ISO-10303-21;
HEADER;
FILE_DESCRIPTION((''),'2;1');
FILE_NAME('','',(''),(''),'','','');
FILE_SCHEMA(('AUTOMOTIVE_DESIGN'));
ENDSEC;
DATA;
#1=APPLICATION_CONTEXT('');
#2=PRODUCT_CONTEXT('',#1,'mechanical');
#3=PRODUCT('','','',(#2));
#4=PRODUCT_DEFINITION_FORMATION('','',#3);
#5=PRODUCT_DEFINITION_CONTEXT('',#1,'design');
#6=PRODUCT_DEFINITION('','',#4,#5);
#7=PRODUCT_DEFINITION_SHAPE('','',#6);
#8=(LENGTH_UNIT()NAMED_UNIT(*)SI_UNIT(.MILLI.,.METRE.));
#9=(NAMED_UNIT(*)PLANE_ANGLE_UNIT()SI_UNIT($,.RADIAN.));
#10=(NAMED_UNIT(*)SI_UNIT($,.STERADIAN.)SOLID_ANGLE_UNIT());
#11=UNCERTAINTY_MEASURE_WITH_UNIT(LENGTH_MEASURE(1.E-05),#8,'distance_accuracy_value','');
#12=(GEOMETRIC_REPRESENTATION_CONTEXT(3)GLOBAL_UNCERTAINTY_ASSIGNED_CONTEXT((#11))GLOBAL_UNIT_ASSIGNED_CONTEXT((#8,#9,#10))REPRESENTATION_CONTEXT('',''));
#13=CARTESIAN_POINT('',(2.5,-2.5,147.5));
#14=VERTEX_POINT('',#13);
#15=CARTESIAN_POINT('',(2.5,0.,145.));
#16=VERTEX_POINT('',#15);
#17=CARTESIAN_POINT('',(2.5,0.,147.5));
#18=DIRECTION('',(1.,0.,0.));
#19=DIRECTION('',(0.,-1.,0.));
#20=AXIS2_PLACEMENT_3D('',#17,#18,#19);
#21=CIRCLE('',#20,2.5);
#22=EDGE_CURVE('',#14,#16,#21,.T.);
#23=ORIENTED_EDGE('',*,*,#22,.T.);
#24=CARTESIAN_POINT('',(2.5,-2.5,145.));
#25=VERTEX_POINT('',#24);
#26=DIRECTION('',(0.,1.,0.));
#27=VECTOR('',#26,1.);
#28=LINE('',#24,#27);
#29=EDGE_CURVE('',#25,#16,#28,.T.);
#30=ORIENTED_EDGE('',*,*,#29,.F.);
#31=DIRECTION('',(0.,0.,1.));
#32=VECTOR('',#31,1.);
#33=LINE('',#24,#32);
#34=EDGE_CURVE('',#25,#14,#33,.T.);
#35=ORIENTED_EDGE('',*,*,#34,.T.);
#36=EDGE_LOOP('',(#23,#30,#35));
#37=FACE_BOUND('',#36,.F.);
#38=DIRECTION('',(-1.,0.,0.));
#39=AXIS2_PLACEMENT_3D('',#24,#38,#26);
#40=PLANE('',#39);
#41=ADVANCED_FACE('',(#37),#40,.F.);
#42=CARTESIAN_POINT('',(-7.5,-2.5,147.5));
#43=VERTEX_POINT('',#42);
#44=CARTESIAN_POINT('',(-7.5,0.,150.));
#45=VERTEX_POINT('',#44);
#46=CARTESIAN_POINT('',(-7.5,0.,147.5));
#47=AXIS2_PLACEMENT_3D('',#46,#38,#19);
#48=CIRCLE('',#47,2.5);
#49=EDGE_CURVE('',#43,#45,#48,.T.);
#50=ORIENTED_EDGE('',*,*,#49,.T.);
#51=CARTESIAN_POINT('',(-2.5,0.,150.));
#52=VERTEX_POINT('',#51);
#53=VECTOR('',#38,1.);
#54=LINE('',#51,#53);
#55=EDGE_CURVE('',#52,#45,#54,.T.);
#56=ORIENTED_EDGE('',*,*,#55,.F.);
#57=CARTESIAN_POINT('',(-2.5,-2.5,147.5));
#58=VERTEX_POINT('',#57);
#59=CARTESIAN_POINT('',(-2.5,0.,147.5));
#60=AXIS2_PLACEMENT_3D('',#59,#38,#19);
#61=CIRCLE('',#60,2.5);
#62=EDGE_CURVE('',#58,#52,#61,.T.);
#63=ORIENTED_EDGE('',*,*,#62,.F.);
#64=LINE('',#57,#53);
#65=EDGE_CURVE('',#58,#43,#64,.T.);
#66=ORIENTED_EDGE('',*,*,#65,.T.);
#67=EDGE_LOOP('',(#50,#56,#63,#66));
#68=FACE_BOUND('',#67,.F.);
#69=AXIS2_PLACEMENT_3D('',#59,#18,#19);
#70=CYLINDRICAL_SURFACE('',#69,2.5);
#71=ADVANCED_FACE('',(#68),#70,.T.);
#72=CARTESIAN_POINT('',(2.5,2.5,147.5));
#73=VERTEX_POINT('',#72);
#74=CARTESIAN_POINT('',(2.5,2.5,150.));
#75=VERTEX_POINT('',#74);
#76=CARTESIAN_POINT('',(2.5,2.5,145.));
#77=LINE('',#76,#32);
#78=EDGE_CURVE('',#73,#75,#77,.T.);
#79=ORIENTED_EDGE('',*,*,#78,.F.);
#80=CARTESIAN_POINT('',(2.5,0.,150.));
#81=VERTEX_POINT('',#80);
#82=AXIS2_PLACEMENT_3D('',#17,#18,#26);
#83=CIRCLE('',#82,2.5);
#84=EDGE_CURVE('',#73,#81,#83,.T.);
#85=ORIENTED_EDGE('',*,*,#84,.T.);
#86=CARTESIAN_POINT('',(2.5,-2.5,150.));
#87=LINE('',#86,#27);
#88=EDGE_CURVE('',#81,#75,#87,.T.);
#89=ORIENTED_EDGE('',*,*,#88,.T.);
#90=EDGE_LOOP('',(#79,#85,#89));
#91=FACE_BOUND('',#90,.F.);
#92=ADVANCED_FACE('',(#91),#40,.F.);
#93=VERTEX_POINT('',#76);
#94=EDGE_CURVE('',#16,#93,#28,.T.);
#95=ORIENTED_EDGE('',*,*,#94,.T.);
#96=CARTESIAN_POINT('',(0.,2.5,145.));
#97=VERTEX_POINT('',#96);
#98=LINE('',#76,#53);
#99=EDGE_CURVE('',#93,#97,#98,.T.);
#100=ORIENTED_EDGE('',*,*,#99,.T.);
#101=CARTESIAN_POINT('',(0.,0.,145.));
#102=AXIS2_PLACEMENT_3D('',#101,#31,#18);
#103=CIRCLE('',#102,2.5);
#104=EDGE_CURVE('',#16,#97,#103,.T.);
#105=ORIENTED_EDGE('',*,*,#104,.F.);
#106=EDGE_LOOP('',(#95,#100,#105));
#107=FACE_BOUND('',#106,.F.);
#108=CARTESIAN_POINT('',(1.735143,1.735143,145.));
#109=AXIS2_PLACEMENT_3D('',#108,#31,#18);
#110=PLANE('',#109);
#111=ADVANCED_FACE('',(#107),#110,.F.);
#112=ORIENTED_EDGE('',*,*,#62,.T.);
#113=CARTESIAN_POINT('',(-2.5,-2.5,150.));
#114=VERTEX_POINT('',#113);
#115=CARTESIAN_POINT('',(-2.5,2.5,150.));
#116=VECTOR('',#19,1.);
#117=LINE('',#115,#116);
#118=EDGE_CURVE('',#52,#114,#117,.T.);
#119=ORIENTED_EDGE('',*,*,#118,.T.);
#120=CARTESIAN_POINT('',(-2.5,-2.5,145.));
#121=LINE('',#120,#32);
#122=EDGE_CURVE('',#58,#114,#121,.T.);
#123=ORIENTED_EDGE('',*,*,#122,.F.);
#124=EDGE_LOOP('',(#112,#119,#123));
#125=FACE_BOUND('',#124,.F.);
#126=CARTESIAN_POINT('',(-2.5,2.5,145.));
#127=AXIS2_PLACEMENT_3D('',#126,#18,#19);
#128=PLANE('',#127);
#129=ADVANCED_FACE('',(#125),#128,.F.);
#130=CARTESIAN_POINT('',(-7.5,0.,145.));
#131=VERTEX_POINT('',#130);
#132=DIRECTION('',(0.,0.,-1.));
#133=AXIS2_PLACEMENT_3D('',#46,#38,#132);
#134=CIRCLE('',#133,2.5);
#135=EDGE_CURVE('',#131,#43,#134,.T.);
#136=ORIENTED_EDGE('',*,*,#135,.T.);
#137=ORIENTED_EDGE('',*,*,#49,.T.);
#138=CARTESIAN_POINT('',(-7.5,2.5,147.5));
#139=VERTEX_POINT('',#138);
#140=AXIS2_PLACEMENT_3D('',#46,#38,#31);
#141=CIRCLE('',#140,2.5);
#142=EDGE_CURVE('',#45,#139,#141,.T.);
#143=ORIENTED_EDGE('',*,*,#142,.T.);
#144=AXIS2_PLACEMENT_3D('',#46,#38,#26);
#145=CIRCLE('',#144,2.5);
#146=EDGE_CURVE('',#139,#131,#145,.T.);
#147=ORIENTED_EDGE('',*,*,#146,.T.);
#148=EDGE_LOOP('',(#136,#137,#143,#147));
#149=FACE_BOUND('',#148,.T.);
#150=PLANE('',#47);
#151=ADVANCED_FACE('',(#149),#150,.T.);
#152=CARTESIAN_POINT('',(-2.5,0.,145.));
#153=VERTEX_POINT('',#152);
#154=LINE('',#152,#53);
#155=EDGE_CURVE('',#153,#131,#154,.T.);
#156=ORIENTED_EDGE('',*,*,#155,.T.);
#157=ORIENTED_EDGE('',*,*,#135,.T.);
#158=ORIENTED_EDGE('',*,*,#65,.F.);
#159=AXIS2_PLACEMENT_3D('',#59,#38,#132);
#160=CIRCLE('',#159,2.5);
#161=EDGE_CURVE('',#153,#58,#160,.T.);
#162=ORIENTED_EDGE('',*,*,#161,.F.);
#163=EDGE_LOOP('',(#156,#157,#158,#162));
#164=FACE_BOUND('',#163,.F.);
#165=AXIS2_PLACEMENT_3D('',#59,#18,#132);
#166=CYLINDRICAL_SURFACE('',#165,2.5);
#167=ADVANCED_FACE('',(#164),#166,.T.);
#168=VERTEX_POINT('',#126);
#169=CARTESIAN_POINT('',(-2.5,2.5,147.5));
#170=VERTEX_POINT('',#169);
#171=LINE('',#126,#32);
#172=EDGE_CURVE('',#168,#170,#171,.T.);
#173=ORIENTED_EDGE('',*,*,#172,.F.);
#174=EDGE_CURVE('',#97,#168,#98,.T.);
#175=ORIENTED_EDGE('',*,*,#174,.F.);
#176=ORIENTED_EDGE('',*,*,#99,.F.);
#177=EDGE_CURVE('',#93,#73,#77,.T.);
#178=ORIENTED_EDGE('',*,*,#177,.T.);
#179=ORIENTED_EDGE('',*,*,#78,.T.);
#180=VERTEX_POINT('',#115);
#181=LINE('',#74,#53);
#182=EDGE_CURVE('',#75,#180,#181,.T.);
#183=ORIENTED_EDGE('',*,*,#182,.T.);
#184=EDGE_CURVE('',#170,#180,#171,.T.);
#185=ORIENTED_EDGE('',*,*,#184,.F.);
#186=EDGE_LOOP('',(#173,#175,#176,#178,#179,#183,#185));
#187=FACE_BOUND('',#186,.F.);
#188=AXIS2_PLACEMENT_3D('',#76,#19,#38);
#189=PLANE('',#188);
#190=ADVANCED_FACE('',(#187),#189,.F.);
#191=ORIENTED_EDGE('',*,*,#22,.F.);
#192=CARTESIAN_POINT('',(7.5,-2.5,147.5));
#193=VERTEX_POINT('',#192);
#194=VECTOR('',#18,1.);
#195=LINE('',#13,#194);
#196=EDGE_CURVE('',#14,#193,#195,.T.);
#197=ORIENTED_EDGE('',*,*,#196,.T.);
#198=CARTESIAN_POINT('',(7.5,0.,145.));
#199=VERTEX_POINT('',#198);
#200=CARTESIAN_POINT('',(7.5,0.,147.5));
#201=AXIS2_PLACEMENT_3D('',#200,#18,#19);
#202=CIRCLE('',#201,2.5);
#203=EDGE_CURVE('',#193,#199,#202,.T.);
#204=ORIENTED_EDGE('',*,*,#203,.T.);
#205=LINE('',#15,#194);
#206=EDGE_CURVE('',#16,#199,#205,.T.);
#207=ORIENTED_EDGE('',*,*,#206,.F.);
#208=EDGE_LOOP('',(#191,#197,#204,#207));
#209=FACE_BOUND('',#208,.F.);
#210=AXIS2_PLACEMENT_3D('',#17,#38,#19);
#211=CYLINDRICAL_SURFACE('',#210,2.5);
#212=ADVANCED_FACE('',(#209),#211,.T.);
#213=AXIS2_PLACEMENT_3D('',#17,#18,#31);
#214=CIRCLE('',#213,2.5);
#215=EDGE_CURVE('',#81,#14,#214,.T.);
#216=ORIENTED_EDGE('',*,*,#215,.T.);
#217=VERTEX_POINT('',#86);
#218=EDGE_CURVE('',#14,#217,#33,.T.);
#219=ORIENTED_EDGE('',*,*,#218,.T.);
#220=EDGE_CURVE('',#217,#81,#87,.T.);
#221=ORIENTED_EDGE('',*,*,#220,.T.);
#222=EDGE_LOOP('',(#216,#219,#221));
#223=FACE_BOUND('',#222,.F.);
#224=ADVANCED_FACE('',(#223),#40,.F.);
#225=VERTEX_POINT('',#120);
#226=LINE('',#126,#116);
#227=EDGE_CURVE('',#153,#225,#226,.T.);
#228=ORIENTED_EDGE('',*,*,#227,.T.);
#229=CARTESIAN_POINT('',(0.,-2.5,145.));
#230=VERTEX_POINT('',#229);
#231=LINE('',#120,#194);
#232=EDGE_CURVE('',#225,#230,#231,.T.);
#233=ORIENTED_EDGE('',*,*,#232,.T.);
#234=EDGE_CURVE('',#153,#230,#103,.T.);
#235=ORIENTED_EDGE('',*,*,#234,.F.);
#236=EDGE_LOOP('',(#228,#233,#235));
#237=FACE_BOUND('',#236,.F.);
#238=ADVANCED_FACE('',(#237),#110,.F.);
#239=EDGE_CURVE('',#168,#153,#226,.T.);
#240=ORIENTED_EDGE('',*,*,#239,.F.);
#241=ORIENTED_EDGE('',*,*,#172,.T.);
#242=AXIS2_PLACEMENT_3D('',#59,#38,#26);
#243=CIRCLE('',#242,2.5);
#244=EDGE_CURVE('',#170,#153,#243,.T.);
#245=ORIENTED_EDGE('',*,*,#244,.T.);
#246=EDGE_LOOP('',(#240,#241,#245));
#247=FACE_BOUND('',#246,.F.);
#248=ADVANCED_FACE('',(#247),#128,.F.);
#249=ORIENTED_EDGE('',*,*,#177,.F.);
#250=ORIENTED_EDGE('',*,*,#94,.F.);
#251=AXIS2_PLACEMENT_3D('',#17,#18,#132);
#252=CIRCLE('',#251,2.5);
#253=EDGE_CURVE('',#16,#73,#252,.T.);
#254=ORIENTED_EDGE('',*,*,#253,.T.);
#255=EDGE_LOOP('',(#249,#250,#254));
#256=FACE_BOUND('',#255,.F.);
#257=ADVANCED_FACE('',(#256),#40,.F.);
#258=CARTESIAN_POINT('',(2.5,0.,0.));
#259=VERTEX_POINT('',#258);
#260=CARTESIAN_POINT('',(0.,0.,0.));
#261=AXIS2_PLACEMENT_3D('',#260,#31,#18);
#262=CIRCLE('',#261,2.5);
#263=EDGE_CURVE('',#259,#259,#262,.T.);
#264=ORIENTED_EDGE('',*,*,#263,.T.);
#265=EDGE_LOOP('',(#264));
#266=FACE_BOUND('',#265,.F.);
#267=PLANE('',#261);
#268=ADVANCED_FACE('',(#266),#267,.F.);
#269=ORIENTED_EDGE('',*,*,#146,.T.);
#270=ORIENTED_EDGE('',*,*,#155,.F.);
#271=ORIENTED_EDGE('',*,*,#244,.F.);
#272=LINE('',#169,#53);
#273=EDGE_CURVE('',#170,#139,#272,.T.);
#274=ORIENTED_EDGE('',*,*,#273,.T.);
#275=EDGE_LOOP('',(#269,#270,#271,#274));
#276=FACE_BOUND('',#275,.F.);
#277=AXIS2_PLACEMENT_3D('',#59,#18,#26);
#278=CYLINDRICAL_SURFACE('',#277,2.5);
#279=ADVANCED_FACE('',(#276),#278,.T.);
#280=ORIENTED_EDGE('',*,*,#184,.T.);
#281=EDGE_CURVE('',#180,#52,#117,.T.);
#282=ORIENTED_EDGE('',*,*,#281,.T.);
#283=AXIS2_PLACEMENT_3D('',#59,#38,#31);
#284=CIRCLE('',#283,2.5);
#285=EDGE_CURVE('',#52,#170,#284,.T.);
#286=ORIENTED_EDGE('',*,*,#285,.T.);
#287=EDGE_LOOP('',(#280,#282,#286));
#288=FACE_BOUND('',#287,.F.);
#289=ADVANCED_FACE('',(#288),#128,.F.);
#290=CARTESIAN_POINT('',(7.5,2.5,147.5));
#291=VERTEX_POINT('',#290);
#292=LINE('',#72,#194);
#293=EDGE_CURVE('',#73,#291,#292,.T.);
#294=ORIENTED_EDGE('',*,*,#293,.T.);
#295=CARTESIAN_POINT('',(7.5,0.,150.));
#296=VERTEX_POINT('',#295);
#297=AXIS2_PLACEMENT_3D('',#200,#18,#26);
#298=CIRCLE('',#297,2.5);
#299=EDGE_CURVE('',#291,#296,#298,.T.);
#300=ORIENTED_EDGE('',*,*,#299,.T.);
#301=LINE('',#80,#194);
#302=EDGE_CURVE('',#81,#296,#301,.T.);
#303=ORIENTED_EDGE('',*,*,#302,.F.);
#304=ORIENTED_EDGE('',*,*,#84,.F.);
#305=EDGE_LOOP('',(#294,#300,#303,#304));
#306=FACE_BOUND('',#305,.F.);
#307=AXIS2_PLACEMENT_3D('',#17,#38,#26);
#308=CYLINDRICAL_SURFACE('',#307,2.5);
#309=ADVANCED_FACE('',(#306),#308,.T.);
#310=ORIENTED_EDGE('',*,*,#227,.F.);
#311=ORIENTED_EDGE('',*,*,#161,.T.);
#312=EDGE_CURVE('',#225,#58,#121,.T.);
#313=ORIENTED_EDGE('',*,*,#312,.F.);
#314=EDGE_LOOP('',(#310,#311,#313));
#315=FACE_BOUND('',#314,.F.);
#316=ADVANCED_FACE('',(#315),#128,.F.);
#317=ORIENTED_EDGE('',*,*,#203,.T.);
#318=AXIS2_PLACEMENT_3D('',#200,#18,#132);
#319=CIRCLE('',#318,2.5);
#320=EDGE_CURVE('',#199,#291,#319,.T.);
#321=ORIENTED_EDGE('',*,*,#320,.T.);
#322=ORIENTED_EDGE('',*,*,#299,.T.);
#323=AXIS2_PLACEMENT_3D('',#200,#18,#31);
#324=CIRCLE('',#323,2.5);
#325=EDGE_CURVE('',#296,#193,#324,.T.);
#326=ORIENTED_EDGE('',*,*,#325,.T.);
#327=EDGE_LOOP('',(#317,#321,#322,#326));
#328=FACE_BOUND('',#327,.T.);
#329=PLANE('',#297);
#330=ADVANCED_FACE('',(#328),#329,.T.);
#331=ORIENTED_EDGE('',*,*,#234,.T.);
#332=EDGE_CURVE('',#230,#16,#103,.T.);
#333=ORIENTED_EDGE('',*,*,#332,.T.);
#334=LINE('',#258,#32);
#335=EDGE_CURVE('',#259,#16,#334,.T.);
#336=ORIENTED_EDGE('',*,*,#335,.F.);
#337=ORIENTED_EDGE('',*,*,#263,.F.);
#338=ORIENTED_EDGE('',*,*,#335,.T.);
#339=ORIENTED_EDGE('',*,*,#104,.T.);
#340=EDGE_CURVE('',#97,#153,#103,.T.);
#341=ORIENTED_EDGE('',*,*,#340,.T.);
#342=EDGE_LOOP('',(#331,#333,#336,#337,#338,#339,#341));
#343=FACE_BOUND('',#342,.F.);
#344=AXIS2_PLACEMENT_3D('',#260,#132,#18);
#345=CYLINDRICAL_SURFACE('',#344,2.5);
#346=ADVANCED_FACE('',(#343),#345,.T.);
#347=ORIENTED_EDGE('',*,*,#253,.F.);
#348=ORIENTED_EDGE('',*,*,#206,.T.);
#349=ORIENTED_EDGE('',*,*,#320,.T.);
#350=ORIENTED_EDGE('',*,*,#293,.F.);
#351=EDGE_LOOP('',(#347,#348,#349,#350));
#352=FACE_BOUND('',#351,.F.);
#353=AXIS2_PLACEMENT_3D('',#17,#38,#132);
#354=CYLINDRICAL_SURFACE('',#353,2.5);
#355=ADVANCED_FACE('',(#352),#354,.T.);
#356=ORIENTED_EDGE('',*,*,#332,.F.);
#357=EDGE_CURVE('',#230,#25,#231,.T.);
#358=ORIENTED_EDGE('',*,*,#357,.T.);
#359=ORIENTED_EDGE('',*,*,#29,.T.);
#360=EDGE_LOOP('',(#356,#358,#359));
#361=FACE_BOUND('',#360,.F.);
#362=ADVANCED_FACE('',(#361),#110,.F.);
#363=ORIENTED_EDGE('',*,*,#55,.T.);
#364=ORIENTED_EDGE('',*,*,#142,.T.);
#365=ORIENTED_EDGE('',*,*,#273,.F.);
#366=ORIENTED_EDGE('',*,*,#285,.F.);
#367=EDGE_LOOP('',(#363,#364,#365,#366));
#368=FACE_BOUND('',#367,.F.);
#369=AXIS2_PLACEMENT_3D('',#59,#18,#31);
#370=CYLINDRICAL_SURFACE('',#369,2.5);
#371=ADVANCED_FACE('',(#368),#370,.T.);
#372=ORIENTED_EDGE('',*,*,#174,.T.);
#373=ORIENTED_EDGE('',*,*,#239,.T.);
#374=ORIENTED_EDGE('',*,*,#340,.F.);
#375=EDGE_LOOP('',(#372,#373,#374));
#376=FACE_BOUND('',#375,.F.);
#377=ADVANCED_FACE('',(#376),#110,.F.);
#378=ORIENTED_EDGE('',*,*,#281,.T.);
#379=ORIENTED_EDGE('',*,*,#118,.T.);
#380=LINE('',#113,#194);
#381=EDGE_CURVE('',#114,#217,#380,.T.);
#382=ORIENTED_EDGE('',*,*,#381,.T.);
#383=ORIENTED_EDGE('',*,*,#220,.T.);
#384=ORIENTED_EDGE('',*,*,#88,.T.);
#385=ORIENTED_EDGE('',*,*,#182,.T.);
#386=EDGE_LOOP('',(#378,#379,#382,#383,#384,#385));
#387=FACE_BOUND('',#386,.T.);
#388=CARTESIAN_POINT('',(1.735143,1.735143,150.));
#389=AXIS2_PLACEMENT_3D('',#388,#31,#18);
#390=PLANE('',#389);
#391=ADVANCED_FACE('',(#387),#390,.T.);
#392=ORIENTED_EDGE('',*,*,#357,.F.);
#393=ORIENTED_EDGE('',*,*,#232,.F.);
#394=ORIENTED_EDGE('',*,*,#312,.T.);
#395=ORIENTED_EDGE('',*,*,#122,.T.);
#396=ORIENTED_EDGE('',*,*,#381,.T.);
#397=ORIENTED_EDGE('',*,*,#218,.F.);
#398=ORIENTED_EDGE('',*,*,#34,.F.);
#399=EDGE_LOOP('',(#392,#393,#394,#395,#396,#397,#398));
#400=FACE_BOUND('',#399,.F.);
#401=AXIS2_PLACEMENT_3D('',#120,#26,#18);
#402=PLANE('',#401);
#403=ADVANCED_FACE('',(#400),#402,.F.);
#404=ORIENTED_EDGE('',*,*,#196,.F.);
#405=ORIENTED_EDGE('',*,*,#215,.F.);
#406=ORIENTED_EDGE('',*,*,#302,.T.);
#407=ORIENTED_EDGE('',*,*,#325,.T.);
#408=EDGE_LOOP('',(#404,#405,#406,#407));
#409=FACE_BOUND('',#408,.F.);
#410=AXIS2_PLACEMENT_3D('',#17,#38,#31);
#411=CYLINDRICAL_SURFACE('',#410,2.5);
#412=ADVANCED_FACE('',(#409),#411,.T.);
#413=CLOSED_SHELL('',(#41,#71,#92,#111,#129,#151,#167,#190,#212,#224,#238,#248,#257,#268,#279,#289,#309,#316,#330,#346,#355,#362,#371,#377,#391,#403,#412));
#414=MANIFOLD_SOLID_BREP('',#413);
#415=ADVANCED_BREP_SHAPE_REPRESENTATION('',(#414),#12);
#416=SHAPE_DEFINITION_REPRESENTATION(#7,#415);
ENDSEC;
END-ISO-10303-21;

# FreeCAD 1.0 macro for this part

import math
import FreeCAD as App
import Part
import Sketcher


def add_polygon(sketch, points):
    """Adds a closed chain of lines whose ends are joined by coincident constraints."""
    first, n = sketch.GeometryCount, len(points)
    for a, b in zip(points, points[1:] + points[:1]):
        sketch.addGeometry(Part.LineSegment(App.Vector(*a, 0), App.Vector(*b, 0)), False)
    for i in range(n):
        sketch.addConstraint(Sketcher.Constraint("Coincident", first + i, 2, first + (i + 1) % n, 1))

doc = App.newDocument("Part")
body = doc.addObject("PartDesign::Body", "Body")

# Sketch on XY plane
sketch1 = body.newObject("Sketcher::SketchObject", "Sketch")
sketch1.AttachmentSupport = (doc.getObject("XY_Plane"), [""])
sketch1.MapMode = "FlatFace"
sketch1.addGeometry(Part.Circle(App.Vector(0, 0, 0), App.Vector(0, 0, 1), 2.5), False)
sketch1.addConstraint([
    Sketcher.Constraint("Coincident", 0, 3, -1, 1),
    Sketcher.Constraint("Diameter", 0, 5.0),
])
pad1 = body.newObject("PartDesign::Pad", "Pad")
pad1.Profile = sketch1
pad1.Length = 145

# Sketch on XY plane
sketch2 = body.newObject("Sketcher::SketchObject", "Sketch001")
sketch2.AttachmentSupport = (doc.getObject("XY_Plane"), [""])
sketch2.MapMode = "FlatFace"
sketch2.AttachmentOffset = App.Placement(App.Vector(0, 0, 145), App.Rotation())
add_polygon(sketch2, [(2, 2), (-2, 2), (-2, -2), (2, -2)])  # lines 0-3
sketch2.addConstraint([
    Sketcher.Constraint("Horizontal", 0),
    Sketcher.Constraint("Vertical", 1),
    Sketcher.Constraint("Horizontal", 2),
    Sketcher.Constraint("Vertical", 3),
    Sketcher.Constraint("Symmetric", 0, 2, 2, 2, -1, 1),
    Sketcher.Constraint("Equal", 2, 1),
    Sketcher.Constraint("DistanceX", 0, 2, 0, 1, 5.0),
])
pad2 = body.newObject("PartDesign::Pad", "Pad001")
pad2.Profile = sketch2
pad2.Length = 5

# Sketch on YZ plane
sketch3 = body.newObject("Sketcher::SketchObject", "Sketch002")
sketch3.AttachmentSupport = (doc.getObject("YZ_Plane"), [""])
sketch3.MapMode = "FlatFace"
sketch3.AttachmentOffset = App.Placement(App.Vector(0, 0, -2.5), App.Rotation())
sketch3.addGeometry([
    Part.ArcOfCircle(Part.Circle(App.Vector(0, 147.5, 0), App.Vector(0, 0, 1), 2.5), math.radians(-90), math.radians(0)),
    Part.ArcOfCircle(Part.Circle(App.Vector(0, 147.5, 0), App.Vector(0, 0, 1), 2.5), math.radians(180), math.radians(270)),
    Part.ArcOfCircle(Part.Circle(App.Vector(0, 147.5, 0), App.Vector(0, 0, 1), 2.5), math.radians(90), math.radians(180)),
    Part.ArcOfCircle(Part.Circle(App.Vector(0, 147.5, 0), App.Vector(0, 0, 1), 2.5), math.radians(0), math.radians(90)),
], False)
sketch3.addConstraint([
    Sketcher.Constraint("Tangent", 0, 1, 1, 2),
    Sketcher.Constraint("Tangent", 1, 1, 2, 2),
    Sketcher.Constraint("Tangent", 2, 1, 3, 2),
    Sketcher.Constraint("Tangent", 3, 1, 0, 2),
    Sketcher.Constraint("Equal", 0, 1),
    Sketcher.Constraint("Symmetric", 1, 1, 3, 1, -2),
    Sketcher.Constraint("PointOnObject", 0, 1, -2),
    Sketcher.Constraint("PointOnObject", 2, 1, -2),
    Sketcher.Constraint("Horizontal", 3, 3, 1, 1),
    Sketcher.Constraint("Radius", 0, 2.5),
    Sketcher.Constraint("DistanceY", -1, 1, 0, 1, 145.0),
])
pad3 = body.newObject("PartDesign::Pad", "Pad002")
pad3.Profile = sketch3
pad3.Length = 5
pad3.Reversed = True

# Sketch on YZ plane
sketch4 = body.newObject("Sketcher::SketchObject", "Sketch003")
sketch4.AttachmentSupport = (doc.getObject("YZ_Plane"), [""])
sketch4.MapMode = "FlatFace"
sketch4.AttachmentOffset = App.Placement(App.Vector(0, 0, 2.5), App.Rotation())
sketch4.addGeometry([
    Part.ArcOfCircle(Part.Circle(App.Vector(0, 147.5, 0), App.Vector(0, 0, 1), 2.5), math.radians(180), math.radians(270)),
    Part.ArcOfCircle(Part.Circle(App.Vector(0, 147.5, 0), App.Vector(0, 0, 1), 2.5), math.radians(-90), math.radians(0)),
    Part.ArcOfCircle(Part.Circle(App.Vector(0, 147.5, 0), App.Vector(0, 0, 1), 2.5), math.radians(0), math.radians(90)),
    Part.ArcOfCircle(Part.Circle(App.Vector(0, 147.5, 0), App.Vector(0, 0, 1), 2.5), math.radians(90), math.radians(180)),
], False)
sketch4.addConstraint([
    Sketcher.Constraint("Tangent", 0, 2, 1, 1),
    Sketcher.Constraint("Tangent", 1, 2, 2, 1),
    Sketcher.Constraint("Tangent", 2, 2, 3, 1),
    Sketcher.Constraint("Tangent", 3, 2, 0, 1),
    Sketcher.Constraint("Equal", 0, 1),
    Sketcher.Constraint("Symmetric", 1, 2, 3, 2, -2),
    Sketcher.Constraint("PointOnObject", 0, 2, -2),
    Sketcher.Constraint("PointOnObject", 2, 2, -2),
    Sketcher.Constraint("Horizontal", 3, 3, 1, 2),
    Sketcher.Constraint("Radius", 0, 2.5),
    Sketcher.Constraint("DistanceY", -1, 1, 0, 2, 145.0),
])
pad4 = body.newObject("PartDesign::Pad", "Pad003")
pad4.Profile = sketch4
pad4.Length = 5

doc.recompute()
